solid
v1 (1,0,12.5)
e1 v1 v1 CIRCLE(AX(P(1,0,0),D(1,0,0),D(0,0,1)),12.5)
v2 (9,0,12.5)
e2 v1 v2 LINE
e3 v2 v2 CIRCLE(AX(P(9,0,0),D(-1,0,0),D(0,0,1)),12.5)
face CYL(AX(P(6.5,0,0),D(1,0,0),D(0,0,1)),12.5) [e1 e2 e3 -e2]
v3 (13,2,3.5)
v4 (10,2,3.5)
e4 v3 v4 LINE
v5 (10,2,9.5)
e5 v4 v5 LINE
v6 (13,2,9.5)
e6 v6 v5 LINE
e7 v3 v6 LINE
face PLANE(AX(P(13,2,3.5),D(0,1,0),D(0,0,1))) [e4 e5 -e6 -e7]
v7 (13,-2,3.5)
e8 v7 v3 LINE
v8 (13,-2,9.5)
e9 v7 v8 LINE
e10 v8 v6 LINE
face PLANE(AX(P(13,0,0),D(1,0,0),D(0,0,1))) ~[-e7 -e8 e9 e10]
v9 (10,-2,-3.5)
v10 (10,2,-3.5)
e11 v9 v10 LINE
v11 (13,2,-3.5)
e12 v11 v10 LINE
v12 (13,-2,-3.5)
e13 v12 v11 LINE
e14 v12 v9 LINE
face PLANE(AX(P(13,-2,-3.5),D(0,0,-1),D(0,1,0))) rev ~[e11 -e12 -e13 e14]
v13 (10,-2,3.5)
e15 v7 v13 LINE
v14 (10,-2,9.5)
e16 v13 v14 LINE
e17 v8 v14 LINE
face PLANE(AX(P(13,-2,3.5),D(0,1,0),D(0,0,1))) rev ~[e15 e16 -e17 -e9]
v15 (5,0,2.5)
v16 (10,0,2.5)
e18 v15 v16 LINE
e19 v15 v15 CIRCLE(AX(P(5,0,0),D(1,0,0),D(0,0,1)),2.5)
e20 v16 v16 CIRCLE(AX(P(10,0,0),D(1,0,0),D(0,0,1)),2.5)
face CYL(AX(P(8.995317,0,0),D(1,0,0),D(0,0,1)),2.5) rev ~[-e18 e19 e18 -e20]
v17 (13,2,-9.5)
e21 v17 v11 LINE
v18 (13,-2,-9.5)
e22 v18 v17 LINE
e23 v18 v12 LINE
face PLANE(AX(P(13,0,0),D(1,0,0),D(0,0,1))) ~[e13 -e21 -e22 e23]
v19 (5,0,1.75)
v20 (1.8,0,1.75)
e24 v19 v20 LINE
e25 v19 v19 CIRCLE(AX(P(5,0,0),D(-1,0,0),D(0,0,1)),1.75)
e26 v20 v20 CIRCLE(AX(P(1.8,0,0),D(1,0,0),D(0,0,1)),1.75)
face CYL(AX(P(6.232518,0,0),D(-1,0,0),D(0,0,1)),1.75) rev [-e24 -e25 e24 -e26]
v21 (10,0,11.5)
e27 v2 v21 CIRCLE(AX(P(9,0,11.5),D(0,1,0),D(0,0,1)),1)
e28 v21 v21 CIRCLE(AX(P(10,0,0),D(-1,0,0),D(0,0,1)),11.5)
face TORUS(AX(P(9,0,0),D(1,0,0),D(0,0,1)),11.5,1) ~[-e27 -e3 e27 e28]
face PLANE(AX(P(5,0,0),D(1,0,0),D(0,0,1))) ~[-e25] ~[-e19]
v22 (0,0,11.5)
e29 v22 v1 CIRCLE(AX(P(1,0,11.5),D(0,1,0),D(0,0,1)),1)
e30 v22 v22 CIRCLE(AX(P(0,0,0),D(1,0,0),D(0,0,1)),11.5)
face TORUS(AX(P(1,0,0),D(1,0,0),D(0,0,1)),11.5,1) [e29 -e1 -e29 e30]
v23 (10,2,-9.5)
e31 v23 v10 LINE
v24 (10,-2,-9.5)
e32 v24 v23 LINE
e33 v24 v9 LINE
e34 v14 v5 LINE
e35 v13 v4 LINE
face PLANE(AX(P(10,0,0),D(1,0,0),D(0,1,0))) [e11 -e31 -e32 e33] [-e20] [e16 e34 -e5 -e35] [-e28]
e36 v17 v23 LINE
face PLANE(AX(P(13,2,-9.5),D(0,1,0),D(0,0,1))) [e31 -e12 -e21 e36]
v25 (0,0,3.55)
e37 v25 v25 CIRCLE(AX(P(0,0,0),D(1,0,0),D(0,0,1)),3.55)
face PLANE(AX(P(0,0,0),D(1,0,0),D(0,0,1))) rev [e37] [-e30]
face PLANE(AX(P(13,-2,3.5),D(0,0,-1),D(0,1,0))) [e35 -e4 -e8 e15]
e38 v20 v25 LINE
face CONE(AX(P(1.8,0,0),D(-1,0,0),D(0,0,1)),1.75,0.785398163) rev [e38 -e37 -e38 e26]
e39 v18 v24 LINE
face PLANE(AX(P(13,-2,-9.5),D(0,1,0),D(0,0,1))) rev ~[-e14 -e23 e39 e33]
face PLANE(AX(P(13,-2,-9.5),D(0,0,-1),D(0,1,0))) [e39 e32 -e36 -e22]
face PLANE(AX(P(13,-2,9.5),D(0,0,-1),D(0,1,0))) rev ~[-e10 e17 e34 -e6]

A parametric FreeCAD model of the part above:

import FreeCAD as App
import Part
import Sketcher
from FreeCAD import Vector
Q = App.Units.Quantity


def edges_at(feature, points):
    """Names of the edges that pass closest to the given points."""
    edges = feature.Shape.Edges
    near = lambda p: min(range(len(edges)), key=lambda i: edges[i].distToShape(Part.Vertex(*p))[0])
    return sorted({f"Edge{near(p) + 1}" for p in points})

doc = App.newDocument("Part")
body = doc.addObject("PartDesign::Body", "Body")

sketch1 = body.newObject("Sketcher::SketchObject", "Sketch")
sketch1.AttachmentSupport = (doc.getObject("XZ_Plane"), [""])
sketch1.MapMode = "FlatFace"
sketch1.addGeometry([
    Part.LineSegment(Vector(0, 12.5, 0), Vector(0, 0, 0)),
    Part.LineSegment(Vector(0, 0, 0), Vector(13, 0, 0)),
    Part.LineSegment(Vector(13, 0, 0), Vector(13, 12.5, 0)),
    Part.LineSegment(Vector(13, 12.5, 0), Vector(0, 12.5, 0)),
], False)
sketch1.addConstraint([
    Sketcher.Constraint("Coincident", 0, 2, 1, 1),
    Sketcher.Constraint("Coincident", 1, 2, 2, 1),
    Sketcher.Constraint("Coincident", 2, 2, 3, 1),
    Sketcher.Constraint("Coincident", 3, 2, 0, 1),
    Sketcher.Constraint("Vertical", 0),
    Sketcher.Constraint("Horizontal", 1),
    Sketcher.Constraint("Vertical", 2),
    Sketcher.Constraint("Horizontal", 3),
    Sketcher.Constraint("Coincident", 0, 2, -1, 1),
    Sketcher.Constraint("DistanceX", 1, 1, 1, 2, 13.0),
    Sketcher.Constraint("DistanceY", 0, 2, 0, 1, 12.5),
])
revolution = body.newObject("PartDesign::Revolution", "Revolution")
revolution.Profile = sketch1
revolution.ReferenceAxis = (sketch1, ["H_Axis"])
revolution.Angle = 360

sketch2 = body.newObject("Sketcher::SketchObject", "Sketch001")
sketch2.AttachmentSupport = (doc.getObject("YZ_Plane"), [""])
sketch2.MapMode = "FlatFace"
sketch2.AttachmentOffset = App.Placement(Vector(0, 0, 13), App.Rotation())
sketch2.addGeometry([
    Part.Circle(Vector(0, 0, 0), Vector(0, 0, 1), 12.5),
    Part.LineSegment(Vector(2, -9.5, 0), Vector(-2, -9.5, 0)),
    Part.LineSegment(Vector(-2, -9.5, 0), Vector(-2, -3.5, 0)),
    Part.LineSegment(Vector(-2, -3.5, 0), Vector(2, -3.5, 0)),
    Part.LineSegment(Vector(2, -3.5, 0), Vector(2, -9.5, 0)),
    Part.LineSegment(Vector(2, 3.5, 0), Vector(-2, 3.5, 0)),
    Part.LineSegment(Vector(-2, 3.5, 0), Vector(-2, 9.5, 0)),
    Part.LineSegment(Vector(-2, 9.5, 0), Vector(2, 9.5, 0)),
    Part.LineSegment(Vector(2, 9.5, 0), Vector(2, 3.5, 0)),
], False)
sketch2.addConstraint([
    Sketcher.Constraint("Coincident", 1, 2, 2, 1),
    Sketcher.Constraint("Coincident", 2, 2, 3, 1),
    Sketcher.Constraint("Coincident", 3, 2, 4, 1),
    Sketcher.Constraint("Coincident", 4, 2, 1, 1),
    Sketcher.Constraint("Coincident", 5, 2, 6, 1),
    Sketcher.Constraint("Coincident", 6, 2, 7, 1),
    Sketcher.Constraint("Coincident", 7, 2, 8, 1),
    Sketcher.Constraint("Coincident", 8, 2, 5, 1),
    Sketcher.Constraint("Horizontal", 1),
    Sketcher.Constraint("Vertical", 2),
    Sketcher.Constraint("Horizontal", 3),
    Sketcher.Constraint("Vertical", 4),
    Sketcher.Constraint("Horizontal", 5),
    Sketcher.Constraint("Vertical", 6),
    Sketcher.Constraint("Horizontal", 7),
    Sketcher.Constraint("Vertical", 8),
    Sketcher.Constraint("Coincident", 0, 3, -1, 1),
    Sketcher.Constraint("Symmetric", 3, 2, 5, 2, -1, 1),
    Sketcher.Constraint("Symmetric", 1, 2, 7, 2, -1, 1),
    Sketcher.Constraint("Vertical", 2, 2, 5, 2),
    Sketcher.Constraint("Diameter", 0, 25.0),
    Sketcher.Constraint("DistanceX", 1, 2, 1, 1, 4.0),
    Sketcher.Constraint("DistanceY", 2, 1, 2, 2, 6.0),
    Sketcher.Constraint("DistanceY", 2, 2, 5, 2, 7.0),
])
pocket1 = body.newObject("PartDesign::Pocket", "Pocket")
pocket1.Profile = sketch2
pocket1.Length = 3

sketch3 = body.newObject("Sketcher::SketchObject", "Sketch002")
sketch3.AttachmentSupport = (doc.getObject("XZ_Plane"), [""])
sketch3.MapMode = "FlatFace"
sketch3.addGeometry([
    Part.LineSegment(Vector(5, 2.5, 0), Vector(5, 0, 0)),
    Part.LineSegment(Vector(5, 0, 0), Vector(12.990635, 0, 0)),
    Part.LineSegment(Vector(12.990635, 0, 0), Vector(12.990635, 2.5, 0)),
    Part.LineSegment(Vector(12.990635, 2.5, 0), Vector(5, 2.5, 0)),
], False)
sketch3.addConstraint([
    Sketcher.Constraint("Coincident", 0, 2, 1, 1),
    Sketcher.Constraint("Coincident", 1, 2, 2, 1),
    Sketcher.Constraint("Coincident", 2, 2, 3, 1),
    Sketcher.Constraint("Coincident", 3, 2, 0, 1),
    Sketcher.Constraint("Vertical", 0),
    Sketcher.Constraint("Horizontal", 1),
    Sketcher.Constraint("Vertical", 2),
    Sketcher.Constraint("Horizontal", 3),
    Sketcher.Constraint("PointOnObject", 0, 2, -1),
    Sketcher.Constraint("DistanceY", 0, 2, 0, 1, 2.5),
    Sketcher.Constraint("DistanceX", -1, 1, 0, 2, 5.0),
    Sketcher.Constraint("DistanceX", 1, 1, 1, 2, 7.990635),
])
groove = body.newObject("PartDesign::Groove", "Groove")
groove.Profile = sketch3
groove.ReferenceAxis = (sketch3, ["H_Axis"])
groove.Angle = 360

sketch4 = body.newObject("Sketcher::SketchObject", "Sketch003")
sketch4.AttachmentSupport = (doc.getObject("XZ_Plane"), [""])
sketch4.MapMode = "FlatFace"
sketch4.addGeometry([
    Part.LineSegment(Vector(0, 3.55, 0), Vector(0, 0, 0)),
    Part.LineSegment(Vector(0, 0, 0), Vector(6.232518, 0, 0)),
    Part.LineSegment(Vector(6.232518, 0, 0), Vector(6.232518, 1.75, 0)),
    Part.LineSegment(Vector(6.232518, 1.75, 0), Vector(1.8, 1.75, 0)),
    Part.LineSegment(Vector(1.8, 1.75, 0), Vector(0, 3.55, 0)),
], False)
sketch4.addConstraint([
    Sketcher.Constraint("Coincident", 0, 2, 1, 1),
    Sketcher.Constraint("Coincident", 1, 2, 2, 1),
    Sketcher.Constraint("Coincident", 2, 2, 3, 1),
    Sketcher.Constraint("Coincident", 3, 2, 4, 1),
    Sketcher.Constraint("Coincident", 4, 2, 0, 1),
    Sketcher.Constraint("Vertical", 0),
    Sketcher.Constraint("Horizontal", 1),
    Sketcher.Constraint("Vertical", 2),
    Sketcher.Constraint("Horizontal", 3),
    Sketcher.Constraint("Coincident", 0, 2, -1, 1),
    Sketcher.Constraint("Angle", 4, Q("135 deg")),
    Sketcher.Constraint("DistanceY", 0, 2, 0, 1, 3.55),
    Sketcher.Constraint("DistanceY", 2, 1, 2, 2, 1.75),
    Sketcher.Constraint("DistanceX", 1, 1, 1, 2, 6.232518),
])
groove2 = body.newObject("PartDesign::Groove", "Groove001")
groove2.Profile = sketch4
groove2.ReferenceAxis = (sketch4, ["H_Axis"])
groove2.Angle = 360
doc.recompute()

fillet = body.newObject("PartDesign::Fillet", "Fillet")
fillet.Base = (groove2, edges_at(groove2, [(10, 0, -12.5), (0, 0, -12.5)]))
fillet.Radius = 1

doc.recompute()
